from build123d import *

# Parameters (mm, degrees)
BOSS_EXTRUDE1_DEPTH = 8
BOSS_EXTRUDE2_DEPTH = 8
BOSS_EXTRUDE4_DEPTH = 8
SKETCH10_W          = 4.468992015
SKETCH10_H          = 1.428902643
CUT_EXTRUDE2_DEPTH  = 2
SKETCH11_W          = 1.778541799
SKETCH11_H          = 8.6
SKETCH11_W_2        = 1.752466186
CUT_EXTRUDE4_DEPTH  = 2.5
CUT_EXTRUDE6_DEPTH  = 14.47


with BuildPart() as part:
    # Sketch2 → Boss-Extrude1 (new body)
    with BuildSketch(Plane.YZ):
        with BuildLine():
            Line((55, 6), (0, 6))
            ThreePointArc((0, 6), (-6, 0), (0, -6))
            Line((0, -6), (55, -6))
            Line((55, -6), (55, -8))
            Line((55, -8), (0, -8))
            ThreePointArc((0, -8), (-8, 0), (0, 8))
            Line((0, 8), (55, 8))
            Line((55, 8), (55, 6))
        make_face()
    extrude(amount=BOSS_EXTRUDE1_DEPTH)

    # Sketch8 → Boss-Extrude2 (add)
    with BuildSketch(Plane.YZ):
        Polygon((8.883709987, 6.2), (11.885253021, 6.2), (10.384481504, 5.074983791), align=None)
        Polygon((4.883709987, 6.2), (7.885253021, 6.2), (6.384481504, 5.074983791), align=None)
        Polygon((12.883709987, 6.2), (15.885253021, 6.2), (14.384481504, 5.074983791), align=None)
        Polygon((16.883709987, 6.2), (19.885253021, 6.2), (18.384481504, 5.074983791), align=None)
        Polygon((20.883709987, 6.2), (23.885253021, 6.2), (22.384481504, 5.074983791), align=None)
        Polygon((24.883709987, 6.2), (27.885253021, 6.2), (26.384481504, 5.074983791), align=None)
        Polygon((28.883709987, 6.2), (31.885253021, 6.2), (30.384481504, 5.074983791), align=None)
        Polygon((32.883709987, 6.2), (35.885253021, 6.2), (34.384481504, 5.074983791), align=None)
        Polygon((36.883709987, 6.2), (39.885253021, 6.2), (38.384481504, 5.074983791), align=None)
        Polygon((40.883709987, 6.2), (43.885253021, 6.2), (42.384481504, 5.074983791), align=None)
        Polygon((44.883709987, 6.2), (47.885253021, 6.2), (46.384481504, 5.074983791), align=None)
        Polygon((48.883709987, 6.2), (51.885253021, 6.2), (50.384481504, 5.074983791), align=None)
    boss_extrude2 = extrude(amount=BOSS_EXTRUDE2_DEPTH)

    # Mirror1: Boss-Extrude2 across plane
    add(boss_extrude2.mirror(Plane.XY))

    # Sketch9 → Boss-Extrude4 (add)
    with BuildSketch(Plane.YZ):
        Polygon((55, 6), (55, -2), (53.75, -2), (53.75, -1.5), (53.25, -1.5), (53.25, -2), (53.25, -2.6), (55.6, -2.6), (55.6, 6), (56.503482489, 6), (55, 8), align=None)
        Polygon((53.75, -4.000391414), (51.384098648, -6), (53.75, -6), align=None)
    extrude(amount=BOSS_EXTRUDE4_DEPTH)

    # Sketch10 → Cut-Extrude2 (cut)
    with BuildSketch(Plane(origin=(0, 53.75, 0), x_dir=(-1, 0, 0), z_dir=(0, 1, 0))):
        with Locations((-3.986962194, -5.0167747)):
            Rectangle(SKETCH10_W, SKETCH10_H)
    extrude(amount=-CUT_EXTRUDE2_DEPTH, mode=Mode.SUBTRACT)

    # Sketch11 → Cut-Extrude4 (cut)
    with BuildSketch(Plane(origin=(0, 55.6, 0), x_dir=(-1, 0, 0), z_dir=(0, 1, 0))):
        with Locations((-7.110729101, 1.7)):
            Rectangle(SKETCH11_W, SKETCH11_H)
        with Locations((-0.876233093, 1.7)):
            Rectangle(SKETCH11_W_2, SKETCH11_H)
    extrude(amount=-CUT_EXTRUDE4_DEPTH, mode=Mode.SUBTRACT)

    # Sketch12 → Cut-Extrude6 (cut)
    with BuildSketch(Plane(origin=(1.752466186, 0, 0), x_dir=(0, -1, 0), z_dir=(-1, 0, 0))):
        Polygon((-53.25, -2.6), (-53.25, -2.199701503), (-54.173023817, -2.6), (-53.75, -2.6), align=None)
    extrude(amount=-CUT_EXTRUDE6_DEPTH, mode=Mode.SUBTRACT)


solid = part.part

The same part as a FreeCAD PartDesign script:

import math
import FreeCAD as App
import Part
import Sketcher
Q = App.Units.Quantity

doc = App.newDocument("Part")
body = doc.addObject("PartDesign::Body", "Body")

sketch1 = body.newObject("Sketcher::SketchObject", "Sketch")
sketch1.AttachmentSupport = (doc.getObject("YZ_Plane"), [""])
sketch1.MapMode = "FlatFace"
sketch1.addGeometry([
    Part.LineSegment(App.Vector(0, 6, 0), App.Vector(55, 6, 0)),
    Part.LineSegment(App.Vector(55, 6, 0), App.Vector(55, 8, 0)),
    Part.LineSegment(App.Vector(55, 8, 0), App.Vector(0, 8, 0)),
    Part.ArcOfCircle(Part.Circle(App.Vector(0, 0, 0), App.Vector(0, 0, 1), 8), math.radians(90), math.radians(270)),
    Part.LineSegment(App.Vector(0, -8, 0), App.Vector(55, -8, 0)),
    Part.LineSegment(App.Vector(55, -8, 0), App.Vector(55, -6, 0)),
    Part.LineSegment(App.Vector(55, -6, 0), App.Vector(0, -6, 0)),
    Part.ArcOfCircle(Part.Circle(App.Vector(0, 0, 0), App.Vector(0, 0, 1), 6), math.radians(90), math.radians(270)),
], False)
sketch1.addConstraint([
    Sketcher.Constraint("Coincident", 0, 2, 1, 1),
    Sketcher.Constraint("Coincident", 1, 2, 2, 1),
    Sketcher.Constraint("Tangent", 2, 2, 3, 1),
    Sketcher.Constraint("Tangent", 3, 2, 4, 1),
    Sketcher.Constraint("Coincident", 4, 2, 5, 1),
    Sketcher.Constraint("Coincident", 5, 2, 6, 1),
    Sketcher.Constraint("Tangent", 6, 2, 7, 2),
    Sketcher.Constraint("Tangent", 7, 1, 0, 1),
    Sketcher.Constraint("Horizontal", 0),
    Sketcher.Constraint("Vertical", 1),
    Sketcher.Constraint("Horizontal", 2),
    Sketcher.Constraint("Horizontal", 4),
    Sketcher.Constraint("Vertical", 5),
    Sketcher.Constraint("Horizontal", 6),
    Sketcher.Constraint("Coincident", 3, 3, -1, 1),
    Sketcher.Constraint("Coincident", 7, 3, -1, 1),
    Sketcher.Constraint("Vertical", 1, 2, 4, 2),
    Sketcher.Constraint("Radius", 3, Q("8 mm")),
    Sketcher.Constraint("Radius", 7, Q("6 mm")),
    Sketcher.Constraint("DistanceX", 0, 1, 0, 2, Q("55 mm")),
])
pad1 = body.newObject("PartDesign::Pad", "Pad")
pad1.Profile = sketch1
pad1.Length = 8

sketch2 = body.newObject("Sketcher::SketchObject", "Sketch001")
sketch2.AttachmentSupport = (doc.getObject("YZ_Plane"), [""])
sketch2.MapMode = "FlatFace"
sketch2.addGeometry([
    Part.LineSegment(App.Vector(11.9, 6.2, 0), App.Vector(8.9, 6.2, 0)),
    Part.LineSegment(App.Vector(8.9, 6.2, 0), App.Vector(10.4, 5.1, 0)),
    Part.LineSegment(App.Vector(10.4, 5.1, 0), App.Vector(11.9, 6.2, 0)),
    Part.LineSegment(App.Vector(7.9, 6.2, 0), App.Vector(4.9, 6.2, 0)),
    Part.LineSegment(App.Vector(4.9, 6.2, 0), App.Vector(6.4, 5.1, 0)),
    Part.LineSegment(App.Vector(6.4, 5.1, 0), App.Vector(7.9, 6.2, 0)),
    Part.LineSegment(App.Vector(15.9, 6.2, 0), App.Vector(12.9, 6.2, 0)),
    Part.LineSegment(App.Vector(12.9, 6.2, 0), App.Vector(14.4, 5.1, 0)),
    Part.LineSegment(App.Vector(14.4, 5.1, 0), App.Vector(15.9, 6.2, 0)),
    Part.LineSegment(App.Vector(19.9, 6.2, 0), App.Vector(16.9, 6.2, 0)),
    Part.LineSegment(App.Vector(16.9, 6.2, 0), App.Vector(18.4, 5.1, 0)),
    Part.LineSegment(App.Vector(18.4, 5.1, 0), App.Vector(19.9, 6.2, 0)),
    Part.LineSegment(App.Vector(23.9, 6.2, 0), App.Vector(20.9, 6.2, 0)),
    Part.LineSegment(App.Vector(20.9, 6.2, 0), App.Vector(22.4, 5.1, 0)),
    Part.LineSegment(App.Vector(22.4, 5.1, 0), App.Vector(23.9, 6.2, 0)),
    Part.LineSegment(App.Vector(27.9, 6.2, 0), App.Vector(24.9, 6.2, 0)),
    Part.LineSegment(App.Vector(24.9, 6.2, 0), App.Vector(26.4, 5.1, 0)),
    Part.LineSegment(App.Vector(26.4, 5.1, 0), App.Vector(27.9, 6.2, 0)),
    Part.LineSegment(App.Vector(31.9, 6.2, 0), App.Vector(28.9, 6.2, 0)),
    Part.LineSegment(App.Vector(28.9, 6.2, 0), App.Vector(30.4, 5.1, 0)),
    Part.LineSegment(App.Vector(30.4, 5.1, 0), App.Vector(31.9, 6.2, 0)),
    Part.LineSegment(App.Vector(35.9, 6.2, 0), App.Vector(32.9, 6.2, 0)),
    Part.LineSegment(App.Vector(32.9, 6.2, 0), App.Vector(34.4, 5.1, 0)),
    Part.LineSegment(App.Vector(34.4, 5.1, 0), App.Vector(35.9, 6.2, 0)),
    Part.LineSegment(App.Vector(39.9, 6.2, 0), App.Vector(36.9, 6.2, 0)),
    Part.LineSegment(App.Vector(36.9, 6.2, 0), App.Vector(38.4, 5.1, 0)),
    Part.LineSegment(App.Vector(38.4, 5.1, 0), App.Vector(39.9, 6.2, 0)),
    Part.LineSegment(App.Vector(43.9, 6.2, 0), App.Vector(40.9, 6.2, 0)),
    Part.LineSegment(App.Vector(40.9, 6.2, 0), App.Vector(42.4, 5.1, 0)),
    Part.LineSegment(App.Vector(42.4, 5.1, 0), App.Vector(43.9, 6.2, 0)),
    Part.LineSegment(App.Vector(47.9, 6.2, 0), App.Vector(44.9, 6.2, 0)),
    Part.LineSegment(App.Vector(44.9, 6.2, 0), App.Vector(46.4, 5.1, 0)),
    Part.LineSegment(App.Vector(46.4, 5.1, 0), App.Vector(47.9, 6.2, 0)),
    Part.LineSegment(App.Vector(51.9, 6.2, 0), App.Vector(48.9, 6.2, 0)),
    Part.LineSegment(App.Vector(48.9, 6.2, 0), App.Vector(50.4, 5.1, 0)),
    Part.LineSegment(App.Vector(50.4, 5.1, 0), App.Vector(51.9, 6.2, 0)),
], False)
sketch2.addConstraint([
    Sketcher.Constraint("Coincident", 0, 2, 1, 1),
    Sketcher.Constraint("Coincident", 1, 2, 2, 1),
    Sketcher.Constraint("Coincident", 2, 2, 0, 1),
    Sketcher.Constraint("Coincident", 3, 2, 4, 1),
    Sketcher.Constraint("Coincident", 4, 2, 5, 1),
    Sketcher.Constraint("Coincident", 5, 2, 3, 1),
    Sketcher.Constraint("Coincident", 6, 2, 7, 1),
    Sketcher.Constraint("Coincident", 7, 2, 8, 1),
    Sketcher.Constraint("Coincident", 8, 2, 6, 1),
    Sketcher.Constraint("Coincident", 9, 2, 10, 1),
    Sketcher.Constraint("Coincident", 10, 2, 11, 1),
    Sketcher.Constraint("Coincident", 11, 2, 9, 1),
    Sketcher.Constraint("Coincident", 12, 2, 13, 1),
    Sketcher.Constraint("Coincident", 13, 2, 14, 1),
    Sketcher.Constraint("Coincident", 14, 2, 12, 1),
    Sketcher.Constraint("Coincident", 15, 2, 16, 1),
    Sketcher.Constraint("Coincident", 16, 2, 17, 1),
    Sketcher.Constraint("Coincident", 17, 2, 15, 1),
    Sketcher.Constraint("Coincident", 18, 2, 19, 1),
    Sketcher.Constraint("Coincident", 19, 2, 20, 1),
    Sketcher.Constraint("Coincident", 20, 2, 18, 1),
    Sketcher.Constraint("Coincident", 21, 2, 22, 1),
    Sketcher.Constraint("Coincident", 22, 2, 23, 1),
    Sketcher.Constraint("Coincident", 23, 2, 21, 1),
    Sketcher.Constraint("Coincident", 24, 2, 25, 1),
    Sketcher.Constraint("Coincident", 25, 2, 26, 1),
    Sketcher.Constraint("Coincident", 26, 2, 24, 1),
    Sketcher.Constraint("Coincident", 27, 2, 28, 1),
    Sketcher.Constraint("Coincident", 28, 2, 29, 1),
    Sketcher.Constraint("Coincident", 29, 2, 27, 1),
    Sketcher.Constraint("Coincident", 30, 2, 31, 1),
    Sketcher.Constraint("Coincident", 31, 2, 32, 1),
    Sketcher.Constraint("Coincident", 32, 2, 30, 1),
    Sketcher.Constraint("Coincident", 33, 2, 34, 1),
    Sketcher.Constraint("Coincident", 34, 2, 35, 1),
    Sketcher.Constraint("Coincident", 35, 2, 33, 1),
    Sketcher.Constraint("Horizontal", 0),
    Sketcher.Constraint("Horizontal", 3),
    Sketcher.Constraint("Horizontal", 6),
    Sketcher.Constraint("Horizontal", 9),
    Sketcher.Constraint("Horizontal", 12),
    Sketcher.Constraint("Horizontal", 15),
    Sketcher.Constraint("Horizontal", 18),
    Sketcher.Constraint("Horizontal", 21),
    Sketcher.Constraint("Horizontal", 24),
    Sketcher.Constraint("Horizontal", 27),
    Sketcher.Constraint("Horizontal", 30),
    Sketcher.Constraint("Horizontal", 33),
    Sketcher.Constraint("Parallel", 1, 4),
    Sketcher.Constraint("Parallel", 2, 5),
    Sketcher.Constraint("Parallel", 4, 7),
    Sketcher.Constraint("Parallel", 5, 8),
    Sketcher.Constraint("Parallel", 7, 10),
    Sketcher.Constraint("Parallel", 8, 11),
    Sketcher.Constraint("Parallel", 10, 13),
    Sketcher.Constraint("Parallel", 11, 14),
    Sketcher.Constraint("Parallel", 13, 16),
    Sketcher.Constraint("Parallel", 14, 17),
    Sketcher.Constraint("Parallel", 16, 19),
    Sketcher.Constraint("Parallel", 17, 20),
    Sketcher.Constraint("Parallel", 19, 22),
    Sketcher.Constraint("Parallel", 20, 23),
    Sketcher.Constraint("Parallel", 22, 25),
    Sketcher.Constraint("Parallel", 23, 26),
    Sketcher.Constraint("Parallel", 25, 28),
    Sketcher.Constraint("Parallel", 26, 29),
    Sketcher.Constraint("Parallel", 28, 31),
    Sketcher.Constraint("Parallel", 29, 32),
    Sketcher.Constraint("Parallel", 31, 34),
    Sketcher.Constraint("Parallel", 32, 35),
    Sketcher.Constraint("Horizontal", 2, 2, 3, 2),
    Sketcher.Constraint("Horizontal", 1, 2, 4, 2),
    Sketcher.Constraint("Horizontal", 5, 2, 6, 2),
    Sketcher.Constraint("Horizontal", 4, 2, 7, 2),
    Sketcher.Constraint("Horizontal", 8, 2, 9, 2),
    Sketcher.Constraint("Horizontal", 7, 2, 10, 2),
    Sketcher.Constraint("Horizontal", 11, 2, 12, 2),
    Sketcher.Constraint("Horizontal", 10, 2, 13, 2),
    Sketcher.Constraint("Horizontal", 14, 2, 15, 2),
    Sketcher.Constraint("Horizontal", 13, 2, 16, 2),
    Sketcher.Constraint("Horizontal", 17, 2, 18, 2),
    Sketcher.Constraint("Horizontal", 16, 2, 19, 2),
    Sketcher.Constraint("Horizontal", 20, 2, 21, 2),
    Sketcher.Constraint("Horizontal", 19, 2, 22, 2),
    Sketcher.Constraint("Horizontal", 23, 2, 24, 2),
    Sketcher.Constraint("Horizontal", 22, 2, 25, 2),
    Sketcher.Constraint("Horizontal", 26, 2, 27, 2),
    Sketcher.Constraint("Horizontal", 25, 2, 28, 2),
    Sketcher.Constraint("Horizontal", 29, 2, 30, 2),
    Sketcher.Constraint("Horizontal", 28, 2, 31, 2),
    Sketcher.Constraint("Horizontal", 32, 2, 33, 2),
    Sketcher.Constraint("Horizontal", 31, 2, 34, 2),
    Sketcher.Constraint("Equal", 1, 2),
    Sketcher.Constraint("DistanceX", 3, 2, 0, 2, Q("4 mm")),
    Sketcher.Constraint("DistanceX", 0, 2, 6, 2, Q("4 mm")),
    Sketcher.Constraint("DistanceX", 6, 2, 9, 2, Q("4 mm")),
    Sketcher.Constraint("DistanceX", 9, 2, 12, 2, Q("4 mm")),
    Sketcher.Constraint("DistanceX", 12, 2, 15, 2, Q("4 mm")),
    Sketcher.Constraint("DistanceX", 15, 2, 18, 2, Q("4 mm")),
    Sketcher.Constraint("DistanceX", 18, 2, 21, 2, Q("4 mm")),
    Sketcher.Constraint("DistanceX", 21, 2, 24, 2, Q("4 mm")),
    Sketcher.Constraint("DistanceX", 24, 2, 27, 2, Q("4 mm")),
    Sketcher.Constraint("DistanceX", 27, 2, 30, 2, Q("4 mm")),
    Sketcher.Constraint("DistanceX", 30, 2, 33, 2, Q("4 mm")),
    Sketcher.Constraint("DistanceY", -1, 1, 0, 2, Q("6.2 mm")),
    Sketcher.Constraint("DistanceX", 0, 2, 0, 1, Q("3.001543 mm")),
    Sketcher.Constraint("DistanceX", -1, 1, 0, 2, Q("8.88371 mm")),
    Sketcher.Constraint("Distance", 1, Q("1.875627 mm")),
])
pad2 = body.newObject("PartDesign::Pad", "Pad001")
pad2.Profile = sketch2
pad2.Length = 8
doc.recompute()

mirrored = body.newObject("PartDesign::Mirrored", "Mirrored")
mirrored.Originals = [pad2]
mirrored.MirrorPlane = (doc.getObject("XY_Plane"), [""])
body.Tip = mirrored

sketch3 = body.newObject("Sketcher::SketchObject", "Sketch002")
sketch3.AttachmentSupport = (doc.getObject("YZ_Plane"), [""])
sketch3.MapMode = "FlatFace"
sketch3.addGeometry([
    Part.LineSegment(App.Vector(55, -2, 0), App.Vector(53.8, -2, 0)),
    Part.LineSegment(App.Vector(53.8, -2, 0), App.Vector(53.8, -1.5, 0)),
    Part.LineSegment(App.Vector(53.8, -1.5, 0), App.Vector(53.2, -1.5, 0)),
    Part.LineSegment(App.Vector(53.2, -1.5, 0), App.Vector(53.2, -2.6, 0)),
    Part.LineSegment(App.Vector(53.2, -2.6, 0), App.Vector(55.6, -2.6, 0)),
    Part.LineSegment(App.Vector(55.6, -2.6, 0), App.Vector(55.6, 6, 0)),
    Part.LineSegment(App.Vector(55.6, 6, 0), App.Vector(56.5, 6, 0)),
    Part.LineSegment(App.Vector(56.5, 6, 0), App.Vector(55, 8, 0)),
    Part.LineSegment(App.Vector(55, 8, 0), App.Vector(55, -2, 0)),
    Part.LineSegment(App.Vector(53.8, -4, 0), App.Vector(51.4, -6, 0)),
    Part.LineSegment(App.Vector(51.4, -6, 0), App.Vector(53.8, -6, 0)),
    Part.LineSegment(App.Vector(53.8, -6, 0), App.Vector(53.8, -4, 0)),
], False)
sketch3.addConstraint([
    Sketcher.Constraint("Coincident", 0, 2, 1, 1),
    Sketcher.Constraint("Coincident", 1, 2, 2, 1),
    Sketcher.Constraint("Coincident", 2, 2, 3, 1),
    Sketcher.Constraint("Coincident", 3, 2, 4, 1),
    Sketcher.Constraint("Coincident", 4, 2, 5, 1),
    Sketcher.Constraint("Coincident", 5, 2, 6, 1),
    Sketcher.Constraint("Coincident", 6, 2, 7, 1),
    Sketcher.Constraint("Coincident", 7, 2, 8, 1),
    Sketcher.Constraint("Coincident", 8, 2, 0, 1),
    Sketcher.Constraint("Coincident", 9, 2, 10, 1),
    Sketcher.Constraint("Coincident", 10, 2, 11, 1),
    Sketcher.Constraint("Coincident", 11, 2, 9, 1),
    Sketcher.Constraint("Horizontal", 0),
    Sketcher.Constraint("Vertical", 1),
    Sketcher.Constraint("Horizontal", 2),
    Sketcher.Constraint("Vertical", 3),
    Sketcher.Constraint("Horizontal", 4),
    Sketcher.Constraint("Vertical", 5),
    Sketcher.Constraint("Horizontal", 6),
    Sketcher.Constraint("Vertical", 8),
    Sketcher.Constraint("Horizontal", 10),
    Sketcher.Constraint("Vertical", 11),
    Sketcher.Constraint("Vertical", 1, 2, 10, 2),
    Sketcher.Constraint("Equal", 2, 1),
    Sketcher.Constraint("DistanceY", 8, 2, 8, 1, Q("10 mm")),
    Sketcher.Constraint("DistanceX", 2, 2, 2, 1, Q("0.5 mm")),
    Sketcher.Constraint("DistanceY", 3, 2, 3, 1, Q("1.1 mm")),
    Sketcher.Constraint("DistanceY", 5, 1, 5, 2, Q("8.6 mm")),
    Sketcher.Constraint("DistanceY", 0, 2, -1, 1, Q("2 mm")),
    Sketcher.Constraint("DistanceX", -1, 1, 7, 2, Q("55 mm")),
    Sketcher.Constraint("DistanceY", 9, 2, -1, 1, Q("6 mm")),
    Sketcher.Constraint("DistanceX", 0, 2, 0, 1, Q("1.25 mm")),
    Sketcher.Constraint("DistanceX", 4, 1, 4, 2, Q("2.35 mm")),
    Sketcher.Constraint("DistanceX", 10, 1, 10, 2, Q("2.365901 mm")),
    Sketcher.Constraint("DistanceY", 11, 1, 11, 2, Q("1.999609 mm")),
    Sketcher.Constraint("Distance", 7, Q("2.502091 mm")),
])
pad3 = body.newObject("PartDesign::Pad", "Pad002")
pad3.Profile = sketch3
pad3.Length = 8

sketch4 = body.newObject("Sketcher::SketchObject", "Sketch003")
sketch4.AttachmentSupport = (doc.getObject("XZ_Plane"), [""])
sketch4.MapMode = "FlatFace"
sketch4.AttachmentOffset = App.Placement(App.Vector(0, 0, -53.75), App.Rotation())
sketch4.addGeometry([
    Part.LineSegment(App.Vector(6.2, -4.3, 0), App.Vector(6.2, -5.7, 0)),
    Part.LineSegment(App.Vector(6.2, -5.7, 0), App.Vector(1.8, -5.7, 0)),
    Part.LineSegment(App.Vector(1.8, -5.7, 0), App.Vector(1.8, -4.3, 0)),
    Part.LineSegment(App.Vector(1.8, -4.3, 0), App.Vector(6.2, -4.3, 0)),
], False)
sketch4.addConstraint([
    Sketcher.Constraint("Coincident", 0, 2, 1, 1),
    Sketcher.Constraint("Coincident", 1, 2, 2, 1),
    Sketcher.Constraint("Coincident", 2, 2, 3, 1),
    Sketcher.Constraint("Coincident", 3, 2, 0, 1),
    Sketcher.Constraint("Vertical", 0),
    Sketcher.Constraint("Horizontal", 1),
    Sketcher.Constraint("Vertical", 2),
    Sketcher.Constraint("Horizontal", 3),
    Sketcher.Constraint("DistanceX", 1, 2, 1, 1, Q("4.468992 mm")),
    Sketcher.Constraint("DistanceY", 0, 2, 0, 1, Q("1.428903 mm")),
    Sketcher.Constraint("DistanceX", -1, 1, 0, 2, Q("6.221458 mm")),
    Sketcher.Constraint("DistanceY", 0, 2, -1, 1, Q("5.731226 mm")),
])
pocket1 = body.newObject("PartDesign::Pocket", "Pocket")
pocket1.Profile = sketch4
pocket1.Length = 2
pocket1.Reversed = True

sketch5 = body.newObject("Sketcher::SketchObject", "Sketch004")
sketch5.AttachmentSupport = (doc.getObject("XZ_Plane"), [""])
sketch5.MapMode = "FlatFace"
sketch5.AttachmentOffset = App.Placement(App.Vector(0, 0, -55.6), App.Rotation())
sketch5.addGeometry([
    Part.LineSegment(App.Vector(8, 6, 0), App.Vector(8, -2.6, 0)),
    Part.LineSegment(App.Vector(8, -2.6, 0), App.Vector(6.2, -2.6, 0)),
    Part.LineSegment(App.Vector(6.2, -2.6, 0), App.Vector(6.2, 6, 0)),
    Part.LineSegment(App.Vector(6.2, 6, 0), App.Vector(8, 6, 0)),
    Part.LineSegment(App.Vector(1.8, 6, 0), App.Vector(1.8, -2.6, 0)),
    Part.LineSegment(App.Vector(1.8, -2.6, 0), App.Vector(0, -2.6, 0)),
    Part.LineSegment(App.Vector(0, -2.6, 0), App.Vector(0, 6, 0)),
    Part.LineSegment(App.Vector(0, 6, 0), App.Vector(1.8, 6, 0)),
], False)
sketch5.addConstraint([
    Sketcher.Constraint("Coincident", 0, 2, 1, 1),
    Sketcher.Constraint("Coincident", 1, 2, 2, 1),
    Sketcher.Constraint("Coincident", 2, 2, 3, 1),
    Sketcher.Constraint("Coincident", 3, 2, 0, 1),
    Sketcher.Constraint("Coincident", 4, 2, 5, 1),
    Sketcher.Constraint("Coincident", 5, 2, 6, 1),
    Sketcher.Constraint("Coincident", 6, 2, 7, 1),
    Sketcher.Constraint("Coincident", 7, 2, 4, 1),
    Sketcher.Constraint("Vertical", 0),
    Sketcher.Constraint("Horizontal", 1),
    Sketcher.Constraint("Vertical", 2),
    Sketcher.Constraint("Horizontal", 3),
    Sketcher.Constraint("Vertical", 4),
    Sketcher.Constraint("Horizontal", 5),
    Sketcher.Constraint("Vertical", 6),
    Sketcher.Constraint("Horizontal", 7),
    Sketcher.Constraint("PointOnObject", 5, 2, -2),
    Sketcher.Constraint("Horizontal", 1, 2, 4, 2),
    Sketcher.Constraint("Horizontal", 3, 2, 6, 2),
    Sketcher.Constraint("DistanceY", 0, 2, 0, 1, Q("8.6 mm")),
    Sketcher.Constraint("DistanceX", -1, 1, 0, 2, Q("8 mm")),
    Sketcher.Constraint("DistanceY", -1, 1, 2, 2, Q("6 mm")),
    Sketcher.Constraint("DistanceX", 1, 2, 1, 1, Q("1.778542 mm")),
    Sketcher.Constraint("DistanceX", 5, 2, 5, 1, Q("1.752466 mm")),
])
pocket2 = body.newObject("PartDesign::Pocket", "Pocket001")
pocket2.Profile = sketch5
pocket2.Length = 2.5
pocket2.Reversed = True

sketch6 = body.newObject("Sketcher::SketchObject", "Sketch005")
sketch6.AttachmentSupport = (doc.getObject("YZ_Plane"), [""])
sketch6.MapMode = "FlatFace"
sketch6.AttachmentOffset = App.Placement(App.Vector(0, 0, 1.752466), App.Rotation())
sketch6.addGeometry([
    Part.LineSegment(App.Vector(53.25, -2.6, 0), App.Vector(53.25, -2.2, 0)),
    Part.LineSegment(App.Vector(53.25, -2.2, 0), App.Vector(54.17, -2.6, 0)),
    Part.LineSegment(App.Vector(54.17, -2.6, 0), App.Vector(53.25, -2.6, 0)),
], False)
sketch6.addConstraint([
    Sketcher.Constraint("Coincident", 0, 2, 1, 1),
    Sketcher.Constraint("Coincident", 1, 2, 2, 1),
    Sketcher.Constraint("Coincident", 2, 2, 0, 1),
    Sketcher.Constraint("Vertical", 0),
    Sketcher.Constraint("Horizontal", 2),
    Sketcher.Constraint("DistanceY", 1, 2, -1, 1, Q("2.6 mm")),
    Sketcher.Constraint("DistanceX", -1, 1, 0, 2, Q("53.25 mm")),
    Sketcher.Constraint("DistanceY", 0, 1, 0, 2, Q("0.400298 mm")),
    Sketcher.Constraint("DistanceX", 2, 2, 2, 1, Q("0.923024 mm")),
])
pocket3 = body.newObject("PartDesign::Pocket", "Pocket002")
pocket3.Profile = sketch6
pocket3.Length = 14.47
pocket3.Reversed = True

doc.recompute()
